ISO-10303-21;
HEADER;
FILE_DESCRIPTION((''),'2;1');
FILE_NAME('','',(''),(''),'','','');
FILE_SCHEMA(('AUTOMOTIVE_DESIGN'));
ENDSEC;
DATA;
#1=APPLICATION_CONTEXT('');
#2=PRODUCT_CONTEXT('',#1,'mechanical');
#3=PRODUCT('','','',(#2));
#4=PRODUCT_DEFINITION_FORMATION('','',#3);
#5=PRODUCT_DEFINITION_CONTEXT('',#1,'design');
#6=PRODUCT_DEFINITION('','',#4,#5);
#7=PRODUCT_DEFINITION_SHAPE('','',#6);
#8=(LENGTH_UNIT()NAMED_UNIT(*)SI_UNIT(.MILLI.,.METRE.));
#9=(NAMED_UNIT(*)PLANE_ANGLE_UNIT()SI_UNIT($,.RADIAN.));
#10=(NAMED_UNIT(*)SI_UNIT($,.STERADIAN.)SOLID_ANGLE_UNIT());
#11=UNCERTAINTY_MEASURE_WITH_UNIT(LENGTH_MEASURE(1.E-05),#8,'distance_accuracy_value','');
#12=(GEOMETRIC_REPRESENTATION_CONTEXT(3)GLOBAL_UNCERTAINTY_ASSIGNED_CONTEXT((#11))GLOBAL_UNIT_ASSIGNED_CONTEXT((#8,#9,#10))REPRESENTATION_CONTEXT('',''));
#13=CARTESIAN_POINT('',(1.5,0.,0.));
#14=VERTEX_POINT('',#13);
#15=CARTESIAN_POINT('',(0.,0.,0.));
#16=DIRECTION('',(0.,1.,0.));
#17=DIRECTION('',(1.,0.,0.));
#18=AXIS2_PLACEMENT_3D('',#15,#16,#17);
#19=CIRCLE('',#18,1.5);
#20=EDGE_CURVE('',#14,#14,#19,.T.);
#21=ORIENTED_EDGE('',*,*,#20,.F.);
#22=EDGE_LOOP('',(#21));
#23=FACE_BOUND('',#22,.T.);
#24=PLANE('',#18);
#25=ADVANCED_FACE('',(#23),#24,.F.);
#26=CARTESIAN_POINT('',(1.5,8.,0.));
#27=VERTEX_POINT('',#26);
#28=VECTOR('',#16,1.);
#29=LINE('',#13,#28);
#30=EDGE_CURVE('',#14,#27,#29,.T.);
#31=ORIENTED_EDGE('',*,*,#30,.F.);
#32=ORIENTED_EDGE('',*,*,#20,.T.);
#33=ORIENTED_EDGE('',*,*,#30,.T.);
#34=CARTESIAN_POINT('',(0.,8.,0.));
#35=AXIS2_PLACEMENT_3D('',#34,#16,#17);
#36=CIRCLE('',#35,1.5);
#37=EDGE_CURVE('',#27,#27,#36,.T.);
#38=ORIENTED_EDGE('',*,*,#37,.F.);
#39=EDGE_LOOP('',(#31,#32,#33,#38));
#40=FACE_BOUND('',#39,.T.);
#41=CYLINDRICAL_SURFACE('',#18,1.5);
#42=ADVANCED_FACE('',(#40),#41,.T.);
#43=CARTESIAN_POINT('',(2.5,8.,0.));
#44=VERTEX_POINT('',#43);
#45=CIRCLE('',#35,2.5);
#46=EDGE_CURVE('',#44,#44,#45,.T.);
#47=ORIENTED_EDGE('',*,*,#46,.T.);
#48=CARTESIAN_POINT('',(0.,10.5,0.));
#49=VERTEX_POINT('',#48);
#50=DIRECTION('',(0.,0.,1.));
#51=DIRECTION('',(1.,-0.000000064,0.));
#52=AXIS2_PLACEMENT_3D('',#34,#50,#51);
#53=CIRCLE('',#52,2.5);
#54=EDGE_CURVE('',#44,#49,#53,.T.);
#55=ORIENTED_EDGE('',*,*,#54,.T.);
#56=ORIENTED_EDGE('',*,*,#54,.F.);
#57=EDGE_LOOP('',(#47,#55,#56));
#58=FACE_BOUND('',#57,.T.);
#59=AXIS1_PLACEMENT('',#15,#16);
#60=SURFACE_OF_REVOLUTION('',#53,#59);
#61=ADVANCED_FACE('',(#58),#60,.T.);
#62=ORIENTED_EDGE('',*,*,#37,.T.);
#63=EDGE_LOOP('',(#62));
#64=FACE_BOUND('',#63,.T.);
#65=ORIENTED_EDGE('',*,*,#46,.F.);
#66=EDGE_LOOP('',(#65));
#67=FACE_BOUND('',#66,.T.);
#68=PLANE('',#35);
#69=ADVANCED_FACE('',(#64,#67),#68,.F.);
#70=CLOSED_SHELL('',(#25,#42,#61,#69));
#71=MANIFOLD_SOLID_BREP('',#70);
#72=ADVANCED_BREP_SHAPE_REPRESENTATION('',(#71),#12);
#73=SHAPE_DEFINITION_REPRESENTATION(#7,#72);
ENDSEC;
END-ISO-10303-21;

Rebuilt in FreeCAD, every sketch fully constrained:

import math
import FreeCAD as App
import Part
import Sketcher

doc = App.newDocument("Part")
body = doc.addObject("PartDesign::Body", "Body")

# Sketch on XY plane
sketch1 = body.newObject("Sketcher::SketchObject", "Sketch")
sketch1.AttachmentSupport = (doc.getObject("XY_Plane"), [""])
sketch1.MapMode = "FlatFace"
sketch1.addGeometry([
    Part.LineSegment(App.Vector(0, 0, 0), App.Vector(1.5, 0, 0)),  # 0
    Part.LineSegment(App.Vector(1.5, 0, 0), App.Vector(1.5, 8, 0)),  # 1
    Part.LineSegment(App.Vector(1.5, 8, 0), App.Vector(2.5, 8, 0)),  # 2
    Part.ArcOfCircle(Part.Circle(App.Vector(0, 8, 0), App.Vector(0, 0, 1), 2.5), math.radians(-0.000004), math.radians(90.000004)),  # 3
    Part.LineSegment(App.Vector(0, 10.5, 0), App.Vector(0, 0, 0)),  # 4
], False)
sketch1.addConstraint([
    Sketcher.Constraint("Coincident", 0, 2, 1, 1),
    Sketcher.Constraint("Coincident", 1, 2, 2, 1),
    Sketcher.Constraint("Coincident", 2, 2, 3, 1),
    Sketcher.Constraint("Coincident", 3, 2, 4, 1),
    Sketcher.Constraint("Coincident", 4, 2, 0, 1),
    Sketcher.Constraint("Horizontal", 0),
    Sketcher.Constraint("Vertical", 1),
    Sketcher.Constraint("Horizontal", 2),
    Sketcher.Constraint("Vertical", 4),
    Sketcher.Constraint("Coincident", 4, 2, -1, 1),
    Sketcher.Constraint("PointOnObject", 3, 3, -2),
    Sketcher.Constraint("Horizontal", 3, 3, 1, 2),
    Sketcher.Constraint("Radius", 3, 2.5),
    Sketcher.Constraint("DistanceX", 2, 1, 2, 2, 1.0),
    Sketcher.Constraint("DistanceY", 1, 1, 1, 2, 8.0),
])
revolution = body.newObject("PartDesign::Revolution", "Revolution")
revolution.Profile = sketch1
revolution.ReferenceAxis = (sketch1, ["V_Axis"])
revolution.Angle = 360

doc.recompute()
